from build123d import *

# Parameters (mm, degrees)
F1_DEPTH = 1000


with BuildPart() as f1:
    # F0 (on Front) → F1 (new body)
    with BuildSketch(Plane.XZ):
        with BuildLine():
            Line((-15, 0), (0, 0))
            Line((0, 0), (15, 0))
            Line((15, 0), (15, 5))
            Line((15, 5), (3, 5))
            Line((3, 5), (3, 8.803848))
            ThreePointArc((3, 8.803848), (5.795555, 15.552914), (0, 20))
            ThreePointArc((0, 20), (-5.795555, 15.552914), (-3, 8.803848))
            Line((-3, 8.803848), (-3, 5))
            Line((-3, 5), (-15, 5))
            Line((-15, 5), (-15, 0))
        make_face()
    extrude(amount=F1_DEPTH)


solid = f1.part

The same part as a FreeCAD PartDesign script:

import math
import FreeCAD as App
import Part
import Sketcher
Q = App.Units.Quantity

doc = App.newDocument("Part")
body = doc.addObject("PartDesign::Body", "Body")

# Sketch on XZ plane
sketch1 = doc.addObject("Sketcher::SketchObject", "Sketch")
body.addObject(sketch1)
sketch1.AttachmentSupport = (doc.XZ_Plane, [""])
sketch1.MapMode = "FlatFace"
sketch1.addGeometry([
    Part.LineSegment(App.Vector(-15, 0, 0), App.Vector(15, 0, 0)),  # 0
    Part.LineSegment(App.Vector(15, 0, 0), App.Vector(15, 5, 0)),  # 1
    Part.LineSegment(App.Vector(15, 5, 0), App.Vector(3, 5, 0)),  # 2
    Part.LineSegment(App.Vector(3, 5, 0), App.Vector(3, 8.8, 0)),  # 3
    Part.ArcOfCircle(Part.Circle(App.Vector(0, 14, 0), App.Vector(0, 0, 1), 6), math.radians(-60), math.radians(90)),  # 4
    Part.ArcOfCircle(Part.Circle(App.Vector(0, 14, 0), App.Vector(0, 0, 1), 6), math.radians(90), math.radians(240)),  # 5
    Part.LineSegment(App.Vector(-3, 8.8, 0), App.Vector(-3, 5, 0)),  # 6
    Part.LineSegment(App.Vector(-3, 5, 0), App.Vector(-15, 5, 0)),  # 7
    Part.LineSegment(App.Vector(-15, 5, 0), App.Vector(-15, 0, 0)),  # 8
], False)
sketch1.addConstraint([
    Sketcher.Constraint("Coincident", 0, 2, 1, 1),
    Sketcher.Constraint("Coincident", 1, 2, 2, 1),
    Sketcher.Constraint("Coincident", 2, 2, 3, 1),
    Sketcher.Constraint("Coincident", 3, 2, 4, 1),
    Sketcher.Constraint("Tangent", 4, 2, 5, 1),
    Sketcher.Constraint("Coincident", 5, 2, 6, 1),
    Sketcher.Constraint("Coincident", 6, 2, 7, 1),
    Sketcher.Constraint("Coincident", 7, 2, 8, 1),
    Sketcher.Constraint("Coincident", 8, 2, 0, 1),
    Sketcher.Constraint("Horizontal", 0),
    Sketcher.Constraint("Vertical", 1),
    Sketcher.Constraint("Horizontal", 2),
    Sketcher.Constraint("Vertical", 3),
    Sketcher.Constraint("Vertical", 6),
    Sketcher.Constraint("Horizontal", 7),
    Sketcher.Constraint("Vertical", 8),
    Sketcher.Constraint("Equal", 4, 5),
    Sketcher.Constraint("Symmetric", 0, 2, 8, 2, -1, 1),
    Sketcher.Constraint("Symmetric", 3, 2, 5, 2, -2),
    Sketcher.Constraint("PointOnObject", 4, 2, -2),
    Sketcher.Constraint("Horizontal", 2, 2, 6, 2),
    Sketcher.Constraint("Radius", 4, Q("6 mm")),
    Sketcher.Constraint("DistanceX", 0, 1, 0, 2, Q("30 mm")),
    Sketcher.Constraint("DistanceX", 2, 2, 2, 1, Q("12 mm")),
    Sketcher.Constraint("DistanceY", 1, 1, 1, 2, Q("5 mm")),
    Sketcher.Constraint("DistanceY", -1, 1, 4, 3, Q("14 mm")),
])
pad1 = doc.addObject("PartDesign::Pad", "Pad")
body.addObject(pad1)
pad1.Profile = sketch1
pad1.Length = 1000

doc.recompute()
